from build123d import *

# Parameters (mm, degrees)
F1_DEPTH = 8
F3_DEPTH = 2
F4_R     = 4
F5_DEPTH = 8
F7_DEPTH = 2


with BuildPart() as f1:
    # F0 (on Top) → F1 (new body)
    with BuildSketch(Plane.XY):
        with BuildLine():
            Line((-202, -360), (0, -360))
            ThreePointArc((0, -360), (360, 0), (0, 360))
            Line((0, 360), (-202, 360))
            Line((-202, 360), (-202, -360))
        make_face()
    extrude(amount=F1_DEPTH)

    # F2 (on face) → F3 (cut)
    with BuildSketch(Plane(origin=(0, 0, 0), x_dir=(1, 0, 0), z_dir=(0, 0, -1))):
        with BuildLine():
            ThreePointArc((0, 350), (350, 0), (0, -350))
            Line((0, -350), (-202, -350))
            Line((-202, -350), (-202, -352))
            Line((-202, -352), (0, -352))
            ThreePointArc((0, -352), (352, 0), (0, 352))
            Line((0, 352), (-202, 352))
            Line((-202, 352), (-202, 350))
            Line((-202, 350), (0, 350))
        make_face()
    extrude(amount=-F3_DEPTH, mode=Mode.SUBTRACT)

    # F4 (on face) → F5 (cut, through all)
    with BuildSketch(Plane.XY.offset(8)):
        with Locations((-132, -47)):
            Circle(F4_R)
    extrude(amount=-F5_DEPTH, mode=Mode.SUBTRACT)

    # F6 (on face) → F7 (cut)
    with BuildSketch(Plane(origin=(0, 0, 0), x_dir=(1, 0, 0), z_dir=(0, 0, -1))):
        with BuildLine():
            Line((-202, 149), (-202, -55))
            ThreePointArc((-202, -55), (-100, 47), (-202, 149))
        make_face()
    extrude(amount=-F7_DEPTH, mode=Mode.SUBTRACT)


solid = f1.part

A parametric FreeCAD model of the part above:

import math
import FreeCAD as App
import Part
import Sketcher
from FreeCAD import Vector
Q = App.Units.Quantity

doc = App.newDocument("Part")
body = doc.addObject("PartDesign::Body", "Body")

# Sketch on XY plane
sketch1 = body.newObject("Sketcher::SketchObject", "Sketch")
sketch1.AttachmentSupport = (doc.getObject("XY_Plane"), [""])
sketch1.MapMode = "FlatFace"
sketch1.addGeometry([
    Part.LineSegment(Vector(-202, -360, 0), Vector(0, -360, 0)),
    Part.ArcOfCircle(Part.Circle(Vector(0, 0, 0), Vector(0, 0, 1), 360), math.radians(-90), math.radians(90)),
    Part.LineSegment(Vector(0, 360, 0), Vector(-202, 360, 0)),
    Part.LineSegment(Vector(-202, 360, 0), Vector(-202, -360, 0)),
], False)
sketch1.addConstraint([
    Sketcher.Constraint("Tangent", 0, 2, 1, 1),
    Sketcher.Constraint("Tangent", 1, 2, 2, 1),
    Sketcher.Constraint("Coincident", 2, 2, 3, 1),
    Sketcher.Constraint("Coincident", 3, 2, 0, 1),
    Sketcher.Constraint("Horizontal", 0),
    Sketcher.Constraint("Horizontal", 2),
    Sketcher.Constraint("Vertical", 3),
    Sketcher.Constraint("Coincident", 1, 3, -1, 1),
    Sketcher.Constraint("Radius", 1, Q("360 mm")),
    Sketcher.Constraint("DistanceX", 0, 1, 0, 2, Q("202 mm")),
])
pad1 = body.newObject("PartDesign::Pad", "Pad")
pad1.Profile = sketch1
pad1.Length = 8

# Sketch on XY plane
sketch2 = body.newObject("Sketcher::SketchObject", "Sketch001")
sketch2.AttachmentSupport = (doc.getObject("XY_Plane"), [""])
sketch2.MapMode = "FlatFace"
sketch2.addGeometry([
    Part.ArcOfCircle(Part.Circle(Vector(0, 0, 0), Vector(0, 0, 1), 350), math.radians(-90), math.radians(90)),  # 0
    Part.LineSegment(Vector(0, 350, 0), Vector(-202, 350, 0)),  # 1
    Part.LineSegment(Vector(-202, 350, 0), Vector(-202, 352, 0)),  # 2
    Part.LineSegment(Vector(-202, 352, 0), Vector(0, 352, 0)),  # 3
    Part.ArcOfCircle(Part.Circle(Vector(0, 0, 0), Vector(0, 0, 1), 352), math.radians(-90), math.radians(90)),  # 4
    Part.LineSegment(Vector(0, -352, 0), Vector(-202, -352, 0)),  # 5
    Part.LineSegment(Vector(-202, -352, 0), Vector(-202, -350, 0)),  # 6
    Part.LineSegment(Vector(-202, -350, 0), Vector(0, -350, 0)),  # 7
], False)
sketch2.addConstraint([
    Sketcher.Constraint("Tangent", 0, 2, 1, 1),
    Sketcher.Constraint("Coincident", 1, 2, 2, 1),
    Sketcher.Constraint("Coincident", 2, 2, 3, 1),
    Sketcher.Constraint("Tangent", 3, 2, 4, 2),
    Sketcher.Constraint("Tangent", 4, 1, 5, 1),
    Sketcher.Constraint("Coincident", 5, 2, 6, 1),
    Sketcher.Constraint("Coincident", 6, 2, 7, 1),
    Sketcher.Constraint("Tangent", 7, 2, 0, 1),
    Sketcher.Constraint("Horizontal", 1),
    Sketcher.Constraint("Vertical", 2),
    Sketcher.Constraint("Horizontal", 3),
    Sketcher.Constraint("Horizontal", 5),
    Sketcher.Constraint("Vertical", 6),
    Sketcher.Constraint("Horizontal", 7),
    Sketcher.Constraint("Coincident", 0, 3, -1, 1),
    Sketcher.Constraint("Coincident", 4, 3, -1, 1),
    Sketcher.Constraint("Vertical", 2, 2, 5, 2),
    Sketcher.Constraint("Radius", 0, Q("350 mm")),
    Sketcher.Constraint("Radius", 4, Q("352 mm")),
    Sketcher.Constraint("DistanceX", 1, 2, 1, 1, Q("202 mm")),
])
pocket1 = body.newObject("PartDesign::Pocket", "Pocket")
pocket1.Profile = sketch2
pocket1.Length = 2
pocket1.Reversed = True

# Sketch on XY plane
sketch3 = body.newObject("Sketcher::SketchObject", "Sketch002")
sketch3.AttachmentSupport = (doc.getObject("XY_Plane"), [""])
sketch3.MapMode = "FlatFace"
sketch3.AttachmentOffset = App.Placement(Vector(0, 0, 8), App.Rotation())
sketch3.addGeometry(Part.Circle(Vector(-132, -47, 0), Vector(0, 0, 1), 4), False)
sketch3.addConstraint([
    Sketcher.Constraint("Diameter", 0, Q("8 mm")),
    Sketcher.Constraint("DistanceX", 0, 3, -1, 1, Q("132 mm")),
    Sketcher.Constraint("DistanceY", 0, 3, -1, 1, Q("47 mm")),
])
pocket2 = body.newObject("PartDesign::Pocket", "Pocket001")
pocket2.Profile = sketch3
pocket2.Type = "ThroughAll"

# Sketch on XY plane
sketch4 = body.newObject("Sketcher::SketchObject", "Sketch003")
sketch4.AttachmentSupport = (doc.getObject("XY_Plane"), [""])
sketch4.MapMode = "FlatFace"
sketch4.addGeometry([
    Part.LineSegment(Vector(-202, -149, 0), Vector(-202, 55, 0)),
    Part.ArcOfCircle(Part.Circle(Vector(-202, -47, 0), Vector(0, 0, 1), 102), math.radians(-90), math.radians(90)),
], False)
sketch4.addConstraint([
    Sketcher.Constraint("Coincident", 0, 1, 1, 1),
    Sketcher.Constraint("Coincident", 1, 2, 0, 2),
    Sketcher.Constraint("Vertical", 0),
    Sketcher.Constraint("Vertical", 1, 3, 0, 1),
    Sketcher.Constraint("Radius", 1, Q("102 mm")),
    Sketcher.Constraint("DistanceX", 1, 3, -1, 1, Q("202 mm")),
    Sketcher.Constraint("DistanceY", 1, 3, -1, 1, Q("47 mm")),
])
pocket3 = body.newObject("PartDesign::Pocket", "Pocket002")
pocket3.Profile = sketch4
pocket3.Length = 2
pocket3.Reversed = True

doc.recompute()
